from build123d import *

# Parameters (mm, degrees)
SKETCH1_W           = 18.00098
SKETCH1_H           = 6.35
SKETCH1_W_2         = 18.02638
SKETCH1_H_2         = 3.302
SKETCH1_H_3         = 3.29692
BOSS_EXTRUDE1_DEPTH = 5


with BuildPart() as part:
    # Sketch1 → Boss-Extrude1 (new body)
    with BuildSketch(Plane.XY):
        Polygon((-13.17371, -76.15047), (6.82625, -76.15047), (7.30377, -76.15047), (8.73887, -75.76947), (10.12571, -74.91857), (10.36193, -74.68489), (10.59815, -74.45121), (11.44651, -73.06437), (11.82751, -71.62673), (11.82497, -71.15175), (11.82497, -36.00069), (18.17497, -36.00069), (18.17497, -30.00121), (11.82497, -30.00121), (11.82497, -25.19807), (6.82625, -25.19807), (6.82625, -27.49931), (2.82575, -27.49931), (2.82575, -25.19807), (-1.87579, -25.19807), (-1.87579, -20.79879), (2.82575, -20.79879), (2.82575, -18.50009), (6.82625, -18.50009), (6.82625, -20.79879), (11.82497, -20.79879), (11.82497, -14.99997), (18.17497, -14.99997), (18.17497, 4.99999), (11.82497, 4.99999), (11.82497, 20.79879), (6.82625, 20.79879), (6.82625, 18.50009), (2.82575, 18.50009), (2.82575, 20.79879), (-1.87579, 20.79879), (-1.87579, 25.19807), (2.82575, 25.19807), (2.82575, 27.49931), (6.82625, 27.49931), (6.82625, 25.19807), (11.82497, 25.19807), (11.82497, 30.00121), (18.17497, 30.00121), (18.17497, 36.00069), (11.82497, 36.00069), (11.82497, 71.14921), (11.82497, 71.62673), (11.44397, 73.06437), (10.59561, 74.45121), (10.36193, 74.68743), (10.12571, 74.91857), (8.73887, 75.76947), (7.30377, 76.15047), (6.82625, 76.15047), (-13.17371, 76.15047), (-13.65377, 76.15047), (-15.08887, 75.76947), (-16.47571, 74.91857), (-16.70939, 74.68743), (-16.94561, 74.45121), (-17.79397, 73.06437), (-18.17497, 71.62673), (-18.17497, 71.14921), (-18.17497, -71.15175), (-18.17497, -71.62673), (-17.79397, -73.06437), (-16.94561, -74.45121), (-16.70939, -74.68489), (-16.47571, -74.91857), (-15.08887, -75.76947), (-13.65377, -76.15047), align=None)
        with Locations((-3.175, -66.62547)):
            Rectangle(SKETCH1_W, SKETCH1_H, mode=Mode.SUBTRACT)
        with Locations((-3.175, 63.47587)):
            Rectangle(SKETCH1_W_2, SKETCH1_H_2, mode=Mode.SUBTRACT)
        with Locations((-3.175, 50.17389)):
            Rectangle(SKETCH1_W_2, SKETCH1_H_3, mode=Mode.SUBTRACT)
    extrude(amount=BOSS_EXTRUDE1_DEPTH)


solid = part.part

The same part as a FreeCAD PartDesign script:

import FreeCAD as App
import Part
import Sketcher
from FreeCAD import Vector
Q = App.Units.Quantity

doc = App.newDocument("Part")
body = doc.addObject("PartDesign::Body", "Body")

sketch1 = doc.addObject("Sketcher::SketchObject", "Sketch")
body.addObject(sketch1)
sketch1.AttachmentSupport = (doc.XY_Plane, [""])
sketch1.MapMode = "FlatFace"
sketch1.addGeometry([
    Part.LineSegment(Vector(7.3, -76.15, 0), Vector(8.74, -75.77, 0)),
    Part.LineSegment(Vector(8.74, -75.77, 0), Vector(10.13, -74.92, 0)),
    Part.LineSegment(Vector(10.13, -74.92, 0), Vector(10.6, -74.45, 0)),
    Part.LineSegment(Vector(10.6, -74.45, 0), Vector(11.45, -73.06, 0)),
    Part.LineSegment(Vector(11.45, -73.06, 0), Vector(11.83, -71.63, 0)),
    Part.LineSegment(Vector(11.83, -71.63, 0), Vector(11.82, -71.15, 0)),
    Part.LineSegment(Vector(11.82, -71.15, 0), Vector(11.82, -36, 0)),
    Part.LineSegment(Vector(11.82, -36, 0), Vector(18.17, -36, 0)),
    Part.LineSegment(Vector(18.17, -36, 0), Vector(18.17, -30, 0)),
    Part.LineSegment(Vector(18.17, -30, 0), Vector(11.82, -30, 0)),
    Part.LineSegment(Vector(11.82, -30, 0), Vector(11.82, -25.2, 0)),
    Part.LineSegment(Vector(11.82, -25.2, 0), Vector(6.83, -25.2, 0)),
    Part.LineSegment(Vector(6.83, -25.2, 0), Vector(6.83, -27.5, 0)),
    Part.LineSegment(Vector(6.83, -27.5, 0), Vector(2.83, -27.5, 0)),
    Part.LineSegment(Vector(2.83, -27.5, 0), Vector(2.83, -25.2, 0)),
    Part.LineSegment(Vector(2.83, -25.2, 0), Vector(-1.88, -25.2, 0)),
    Part.LineSegment(Vector(-1.88, -25.2, 0), Vector(-1.88, -20.8, 0)),
    Part.LineSegment(Vector(-1.88, -20.8, 0), Vector(2.83, -20.8, 0)),
    Part.LineSegment(Vector(2.83, -20.8, 0), Vector(2.83, -18.5, 0)),
    Part.LineSegment(Vector(2.83, -18.5, 0), Vector(6.83, -18.5, 0)),
    Part.LineSegment(Vector(6.83, -18.5, 0), Vector(6.83, -20.8, 0)),
    Part.LineSegment(Vector(6.83, -20.8, 0), Vector(11.82, -20.8, 0)),
    Part.LineSegment(Vector(11.82, -20.8, 0), Vector(11.82, -15, 0)),
    Part.LineSegment(Vector(11.82, -15, 0), Vector(18.17, -15, 0)),
    Part.LineSegment(Vector(18.17, -15, 0), Vector(18.17, 5, 0)),
    Part.LineSegment(Vector(18.17, 5, 0), Vector(11.82, 5, 0)),
    Part.LineSegment(Vector(11.82, 5, 0), Vector(11.82, 20.8, 0)),
    Part.LineSegment(Vector(11.82, 20.8, 0), Vector(6.83, 20.8, 0)),
    Part.LineSegment(Vector(6.83, 20.8, 0), Vector(6.83, 18.5, 0)),
    Part.LineSegment(Vector(6.83, 18.5, 0), Vector(2.83, 18.5, 0)),
    Part.LineSegment(Vector(2.83, 18.5, 0), Vector(2.83, 20.8, 0)),
    Part.LineSegment(Vector(2.83, 20.8, 0), Vector(-1.88, 20.8, 0)),
    Part.LineSegment(Vector(-1.88, 20.8, 0), Vector(-1.88, 25.2, 0)),
    Part.LineSegment(Vector(-1.88, 25.2, 0), Vector(2.83, 25.2, 0)),
    Part.LineSegment(Vector(2.83, 25.2, 0), Vector(2.83, 27.5, 0)),
    Part.LineSegment(Vector(2.83, 27.5, 0), Vector(6.83, 27.5, 0)),
    Part.LineSegment(Vector(6.83, 27.5, 0), Vector(6.83, 25.2, 0)),
    Part.LineSegment(Vector(6.83, 25.2, 0), Vector(11.82, 25.2, 0)),
    Part.LineSegment(Vector(11.82, 25.2, 0), Vector(11.82, 30, 0)),
    Part.LineSegment(Vector(11.82, 30, 0), Vector(18.17, 30, 0)),
    Part.LineSegment(Vector(18.17, 30, 0), Vector(18.17, 36, 0)),
    Part.LineSegment(Vector(18.17, 36, 0), Vector(11.82, 36, 0)),
    Part.LineSegment(Vector(11.82, 36, 0), Vector(11.82, 71.63, 0)),
    Part.LineSegment(Vector(11.82, 71.63, 0), Vector(11.44, 73.06, 0)),
    Part.LineSegment(Vector(11.44, 73.06, 0), Vector(10.6, 74.45, 0)),
    Part.LineSegment(Vector(10.6, 74.45, 0), Vector(10.36, 74.69, 0)),
    Part.LineSegment(Vector(10.36, 74.69, 0), Vector(10.13, 74.92, 0)),
    Part.LineSegment(Vector(10.13, 74.92, 0), Vector(8.74, 75.77, 0)),
    Part.LineSegment(Vector(8.74, 75.77, 0), Vector(7.3, 76.15, 0)),
    Part.LineSegment(Vector(7.3, 76.15, 0), Vector(-13.65, 76.15, 0)),
    Part.LineSegment(Vector(-13.65, 76.15, 0), Vector(-15.09, 75.77, 0)),
    Part.LineSegment(Vector(-15.09, 75.77, 0), Vector(-16.48, 74.92, 0)),
    Part.LineSegment(Vector(-16.48, 74.92, 0), Vector(-16.71, 74.69, 0)),
    Part.LineSegment(Vector(-16.71, 74.69, 0), Vector(-16.95, 74.45, 0)),
    Part.LineSegment(Vector(-16.95, 74.45, 0), Vector(-17.79, 73.06, 0)),
    Part.LineSegment(Vector(-17.79, 73.06, 0), Vector(-18.17, 71.63, 0)),
    Part.LineSegment(Vector(-18.17, 71.63, 0), Vector(-18.17, -71.63, 0)),
    Part.LineSegment(Vector(-18.17, -71.63, 0), Vector(-17.79, -73.06, 0)),
    Part.LineSegment(Vector(-17.79, -73.06, 0), Vector(-16.95, -74.45, 0)),
    Part.LineSegment(Vector(-16.95, -74.45, 0), Vector(-16.71, -74.68, 0)),
    Part.LineSegment(Vector(-16.71, -74.68, 0), Vector(-16.48, -74.92, 0)),
    Part.LineSegment(Vector(-16.48, -74.92, 0), Vector(-15.09, -75.77, 0)),
    Part.LineSegment(Vector(-15.09, -75.77, 0), Vector(-13.65, -76.15, 0)),
    Part.LineSegment(Vector(-13.65, -76.15, 0), Vector(7.3, -76.15, 0)),
    Part.LineSegment(Vector(5.83, -69.8, 0), Vector(-12.18, -69.8, 0)),
    Part.LineSegment(Vector(-12.18, -69.8, 0), Vector(-12.18, -63.45, 0)),
    Part.LineSegment(Vector(-12.18, -63.45, 0), Vector(5.83, -63.45, 0)),
    Part.LineSegment(Vector(5.83, -63.45, 0), Vector(5.83, -69.8, 0)),
    Part.LineSegment(Vector(5.84, 48.53, 0), Vector(-12.19, 48.53, 0)),
    Part.LineSegment(Vector(-12.19, 48.53, 0), Vector(-12.19, 51.82, 0)),
    Part.LineSegment(Vector(-12.19, 51.82, 0), Vector(5.84, 51.82, 0)),
    Part.LineSegment(Vector(5.84, 51.82, 0), Vector(5.84, 48.53, 0)),
    Part.LineSegment(Vector(5.84, 61.82, 0), Vector(-12.19, 61.82, 0)),
    Part.LineSegment(Vector(-12.19, 61.82, 0), Vector(-12.19, 65.13, 0)),
    Part.LineSegment(Vector(-12.19, 65.13, 0), Vector(5.84, 65.13, 0)),
    Part.LineSegment(Vector(5.84, 65.13, 0), Vector(5.84, 61.82, 0)),
], False)
sketch1.addConstraint([
    Sketcher.Constraint("Coincident", 0, 2, 1, 1),
    Sketcher.Constraint("Coincident", 1, 2, 2, 1),
    Sketcher.Constraint("Coincident", 2, 2, 3, 1),
    Sketcher.Constraint("Coincident", 3, 2, 4, 1),
    Sketcher.Constraint("Coincident", 4, 2, 5, 1),
    Sketcher.Constraint("Coincident", 5, 2, 6, 1),
    Sketcher.Constraint("Coincident", 6, 2, 7, 1),
    Sketcher.Constraint("Coincident", 7, 2, 8, 1),
    Sketcher.Constraint("Coincident", 8, 2, 9, 1),
    Sketcher.Constraint("Coincident", 9, 2, 10, 1),
    Sketcher.Constraint("Coincident", 10, 2, 11, 1),
    Sketcher.Constraint("Coincident", 11, 2, 12, 1),
    Sketcher.Constraint("Coincident", 12, 2, 13, 1),
    Sketcher.Constraint("Coincident", 13, 2, 14, 1),
    Sketcher.Constraint("Coincident", 14, 2, 15, 1),
    Sketcher.Constraint("Coincident", 15, 2, 16, 1),
    Sketcher.Constraint("Coincident", 16, 2, 17, 1),
    Sketcher.Constraint("Coincident", 17, 2, 18, 1),
    Sketcher.Constraint("Coincident", 18, 2, 19, 1),
    Sketcher.Constraint("Coincident", 19, 2, 20, 1),
    Sketcher.Constraint("Coincident", 20, 2, 21, 1),
    Sketcher.Constraint("Coincident", 21, 2, 22, 1),
    Sketcher.Constraint("Coincident", 22, 2, 23, 1),
    Sketcher.Constraint("Coincident", 23, 2, 24, 1),
    Sketcher.Constraint("Coincident", 24, 2, 25, 1),
    Sketcher.Constraint("Coincident", 25, 2, 26, 1),
    Sketcher.Constraint("Coincident", 26, 2, 27, 1),
    Sketcher.Constraint("Coincident", 27, 2, 28, 1),
    Sketcher.Constraint("Coincident", 28, 2, 29, 1),
    Sketcher.Constraint("Coincident", 29, 2, 30, 1),
    Sketcher.Constraint("Coincident", 30, 2, 31, 1),
    Sketcher.Constraint("Coincident", 31, 2, 32, 1),
    Sketcher.Constraint("Coincident", 32, 2, 33, 1),
    Sketcher.Constraint("Coincident", 33, 2, 34, 1),
    Sketcher.Constraint("Coincident", 34, 2, 35, 1),
    Sketcher.Constraint("Coincident", 35, 2, 36, 1),
    Sketcher.Constraint("Coincident", 36, 2, 37, 1),
    Sketcher.Constraint("Coincident", 37, 2, 38, 1),
    Sketcher.Constraint("Coincident", 38, 2, 39, 1),
    Sketcher.Constraint("Coincident", 39, 2, 40, 1),
    Sketcher.Constraint("Coincident", 40, 2, 41, 1),
    Sketcher.Constraint("Coincident", 41, 2, 42, 1),
    Sketcher.Constraint("Coincident", 42, 2, 43, 1),
    Sketcher.Constraint("Coincident", 43, 2, 44, 1),
    Sketcher.Constraint("Coincident", 44, 2, 45, 1),
    Sketcher.Constraint("Coincident", 45, 2, 46, 1),
    Sketcher.Constraint("Coincident", 46, 2, 47, 1),
    Sketcher.Constraint("Coincident", 47, 2, 48, 1),
    Sketcher.Constraint("Coincident", 48, 2, 49, 1),
    Sketcher.Constraint("Coincident", 49, 2, 50, 1),
    Sketcher.Constraint("Coincident", 50, 2, 51, 1),
    Sketcher.Constraint("Coincident", 51, 2, 52, 1),
    Sketcher.Constraint("Coincident", 52, 2, 53, 1),
    Sketcher.Constraint("Coincident", 53, 2, 54, 1),
    Sketcher.Constraint("Coincident", 54, 2, 55, 1),
    Sketcher.Constraint("Coincident", 55, 2, 56, 1),
    Sketcher.Constraint("Coincident", 56, 2, 57, 1),
    Sketcher.Constraint("Coincident", 57, 2, 58, 1),
    Sketcher.Constraint("Coincident", 58, 2, 59, 1),
    Sketcher.Constraint("Coincident", 59, 2, 60, 1),
    Sketcher.Constraint("Coincident", 60, 2, 61, 1),
    Sketcher.Constraint("Coincident", 61, 2, 62, 1),
    Sketcher.Constraint("Coincident", 62, 2, 63, 1),
    Sketcher.Constraint("Coincident", 63, 2, 0, 1),
    Sketcher.Constraint("Coincident", 64, 2, 65, 1),
    Sketcher.Constraint("Coincident", 65, 2, 66, 1),
    Sketcher.Constraint("Coincident", 66, 2, 67, 1),
    Sketcher.Constraint("Coincident", 67, 2, 64, 1),
    Sketcher.Constraint("Coincident", 68, 2, 69, 1),
    Sketcher.Constraint("Coincident", 69, 2, 70, 1),
    Sketcher.Constraint("Coincident", 70, 2, 71, 1),
    Sketcher.Constraint("Coincident", 71, 2, 68, 1),
    Sketcher.Constraint("Coincident", 72, 2, 73, 1),
    Sketcher.Constraint("Coincident", 73, 2, 74, 1),
    Sketcher.Constraint("Coincident", 74, 2, 75, 1),
    Sketcher.Constraint("Coincident", 75, 2, 72, 1),
    Sketcher.Constraint("Vertical", 6),
    Sketcher.Constraint("Horizontal", 7),
    Sketcher.Constraint("Vertical", 8),
    Sketcher.Constraint("Horizontal", 9),
    Sketcher.Constraint("Vertical", 10),
    Sketcher.Constraint("Horizontal", 11),
    Sketcher.Constraint("Vertical", 12),
    Sketcher.Constraint("Horizontal", 13),
    Sketcher.Constraint("Vertical", 14),
    Sketcher.Constraint("Horizontal", 15),
    Sketcher.Constraint("Vertical", 16),
    Sketcher.Constraint("Horizontal", 17),
    Sketcher.Constraint("Vertical", 18),
    Sketcher.Constraint("Horizontal", 19),
    Sketcher.Constraint("Vertical", 20),
    Sketcher.Constraint("Horizontal", 21),
    Sketcher.Constraint("Vertical", 22),
    Sketcher.Constraint("Horizontal", 23),
    Sketcher.Constraint("Vertical", 24),
    Sketcher.Constraint("Horizontal", 25),
    Sketcher.Constraint("Vertical", 26),
    Sketcher.Constraint("Horizontal", 27),
    Sketcher.Constraint("Vertical", 28),
    Sketcher.Constraint("Horizontal", 29),
    Sketcher.Constraint("Vertical", 30),
    Sketcher.Constraint("Horizontal", 31),
    Sketcher.Constraint("Vertical", 32),
    Sketcher.Constraint("Horizontal", 33),
    Sketcher.Constraint("Vertical", 34),
    Sketcher.Constraint("Horizontal", 35),
    Sketcher.Constraint("Vertical", 36),
    Sketcher.Constraint("Horizontal", 37),
    Sketcher.Constraint("Vertical", 38),
    Sketcher.Constraint("Horizontal", 39),
    Sketcher.Constraint("Vertical", 40),
    Sketcher.Constraint("Horizontal", 41),
    Sketcher.Constraint("Vertical", 42),
    Sketcher.Constraint("Horizontal", 49),
    Sketcher.Constraint("Vertical", 56),
    Sketcher.Constraint("Horizontal", 63),
    Sketcher.Constraint("Horizontal", 64),
    Sketcher.Constraint("Vertical", 65),
    Sketcher.Constraint("Horizontal", 66),
    Sketcher.Constraint("Vertical", 67),
    Sketcher.Constraint("Horizontal", 68),
    Sketcher.Constraint("Vertical", 69),
    Sketcher.Constraint("Horizontal", 70),
    Sketcher.Constraint("Vertical", 71),
    Sketcher.Constraint("Horizontal", 72),
    Sketcher.Constraint("Vertical", 73),
    Sketcher.Constraint("Horizontal", 74),
    Sketcher.Constraint("Vertical", 75),
    Sketcher.Constraint("Symmetric", 21, 2, 26, 2, -1),
    Sketcher.Constraint("Symmetric", 19, 2, 28, 2, -1),
    Sketcher.Constraint("Symmetric", 17, 2, 30, 2, -1),
    Sketcher.Constraint("Symmetric", 15, 2, 32, 2, -1),
    Sketcher.Constraint("Symmetric", 13, 2, 34, 2, -1),
    Sketcher.Constraint("Symmetric", 11, 2, 36, 2, -1),
    Sketcher.Constraint("Symmetric", 9, 2, 38, 2, -1),
    Sketcher.Constraint("Symmetric", 7, 2, 40, 2, -1),
    Sketcher.Constraint("Symmetric", 1, 2, 46, 2, -1),
    Sketcher.Constraint("Symmetric", 0, 2, 47, 2, -1),
    Sketcher.Constraint("Symmetric", 54, 2, 57, 2, -1),
    Sketcher.Constraint("Symmetric", 53, 2, 58, 2, -1),
    Sketcher.Constraint("Symmetric", 51, 2, 60, 2, -1),
    Sketcher.Constraint("Symmetric", 50, 2, 61, 2, -1),
    Sketcher.Constraint("Symmetric", 49, 2, 62, 2, -1),
    Sketcher.Constraint("Perpendicular", 2, 45),
    Sketcher.Constraint("Parallel", 0, 50),
    Sketcher.Constraint("Parallel", 1, 51),
    Sketcher.Constraint("Parallel", 3, 54),
    Sketcher.Constraint("Parallel", 4, 55),
    Sketcher.Constraint("Parallel", 43, 57),
    Sketcher.Constraint("Parallel", 44, 58),
    Sketcher.Constraint("Perpendicular", 53, 60),
    Sketcher.Constraint("Parallel", 48, 62),
    Sketcher.Constraint("Horizontal", 11, 2, 14, 2),
    Sketcher.Constraint("Horizontal", 17, 2, 20, 2),
    Sketcher.Constraint("Horizontal", 47, 2, 50, 2),
    Sketcher.Constraint("Horizontal", 46, 2, 51, 2),
    Sketcher.Constraint("Horizontal", 45, 2, 52, 2),
    Sketcher.Constraint("Horizontal", 44, 2, 53, 2),
    Sketcher.Constraint("Horizontal", 43, 2, 54, 2),
    Sketcher.Constraint("Horizontal", 42, 2, 55, 2),
    Sketcher.Constraint("Horizontal", 4, 2, 56, 2),
    Sketcher.Constraint("Horizontal", 3, 2, 57, 2),
    Sketcher.Constraint("Horizontal", 2, 2, 58, 2),
    Sketcher.Constraint("Vertical", 6, 2, 9, 2),
    Sketcher.Constraint("Vertical", 14, 2, 17, 2),
    Sketcher.Constraint("Vertical", 12, 2, 19, 2),
    Sketcher.Constraint("Vertical", 10, 2, 21, 2),
    Sketcher.Constraint("Vertical", 8, 2, 23, 2),
    Sketcher.Constraint("Vertical", 38, 2, 41, 2),
    Sketcher.Constraint("Vertical", 52, 2, 59, 2),
    Sketcher.Constraint("Vertical", 69, 2, 72, 2),
    Sketcher.Constraint("Vertical", 71, 2, 74, 2),
    Sketcher.Constraint("Equal", 41, 65),
    Sketcher.Constraint("Equal", 4, 43),
    Sketcher.Constraint("Equal", 45, 59),
    Sketcher.Constraint("Angle", 53, Q("-135 deg")),
    Sketcher.Constraint("DistanceX", 7, 1, 7, 2, Q("0.25 in")),
    Sketcher.Constraint("DistanceY", 73, 1, 73, 2, Q("0.13 in")),
    Sketcher.Constraint("DistanceY", 26, 1, 26, 2, Q("0.622 in")),
    Sketcher.Constraint("DistanceX", 11, 2, 11, 1, Q("0.1968 in")),
    Sketcher.Constraint("DistanceX", 13, 2, 13, 1, Q("0.1575 in")),
    Sketcher.Constraint("DistanceX", 15, 2, 15, 1, Q("0.1851 in")),
    Sketcher.Constraint("DistanceX", 49, 2, 49, 1, Q("0.8251 in")),
    Sketcher.Constraint("DistanceX", 64, 2, 64, 1, Q("0.7087 in")),
    Sketcher.Constraint("DistanceX", 68, 2, 68, 1, Q("0.7097 in")),
    Sketcher.Constraint("DistanceY", 6, 1, 6, 2, Q("1.3839 in")),
    Sketcher.Constraint("DistanceY", 8, 1, 8, 2, Q("0.2362 in")),
    Sketcher.Constraint("DistanceY", 10, 1, 10, 2, Q("0.1891 in")),
    Sketcher.Constraint("DistanceY", 12, 2, 12, 1, Q("0.0906 in")),
    Sketcher.Constraint("DistanceY", 16, 1, 16, 2, Q("0.1732 in")),
    Sketcher.Constraint("DistanceY", 18, 1, 18, 2, Q("0.0905 in")),
    Sketcher.Constraint("DistanceY", 22, 1, 22, 2, Q("0.2283 in")),
    Sketcher.Constraint("DistanceY", 24, 1, 24, 2, Q("0.7874 in")),
    Sketcher.Constraint("DistanceY", 42, 1, 42, 2, Q("1.4026 in")),
    Sketcher.Constraint("DistanceY", 69, 1, 69, 2, Q("0.1298 in")),
    Sketcher.Constraint("Distance", 1, Q("1.62707 mm")),
    Sketcher.Constraint("Distance", 2, Q("0.664549 mm")),
    Sketcher.Constraint("Distance", 4, Q("1.487269 mm")),
    Sketcher.Constraint("DistanceX", -1, 1, 0, 2, Q("8.73887 mm")),
    Sketcher.Constraint("DistanceY", 0, 2, -1, 1, Q("75.76947 mm")),
    Sketcher.Constraint("DistanceX", -1, 1, 1, 2, Q("10.12571 mm")),
    Sketcher.Constraint("DistanceX", -1, 1, 2, 2, Q("10.59815 mm")),
    Sketcher.Constraint("DistanceX", -1, 1, 3, 2, Q("11.44651 mm")),
    Sketcher.Constraint("DistanceY", 3, 2, -1, 1, Q("73.06437 mm")),
    Sketcher.Constraint("DistanceX", -1, 1, 5, 2, Q("11.82497 mm")),
    Sketcher.Constraint("DistanceX", -1, 1, 45, 2, Q("10.36193 mm")),
    Sketcher.Constraint("DistanceX", -1, 1, 48, 2, Q("7.30377 mm")),
    Sketcher.Constraint("DistanceY", -1, 1, 48, 2, Q("76.15047 mm")),
    Sketcher.Constraint("DistanceX", 64, 2, -1, 1, Q("12.17549 mm")),
    Sketcher.Constraint("DistanceY", 64, 2, -1, 1, Q("69.80047 mm")),
    Sketcher.Constraint("DistanceX", 68, 2, -1, 1, Q("12.18819 mm")),
    Sketcher.Constraint("DistanceY", -1, 1, 68, 2, Q("48.52543 mm")),
    Sketcher.Constraint("DistanceY", -1, 1, 72, 2, Q("61.82487 mm")),
])
pad1 = doc.addObject("PartDesign::Pad", "Pad")
body.addObject(pad1)
pad1.Profile = sketch1
pad1.Length = 5

doc.recompute()
